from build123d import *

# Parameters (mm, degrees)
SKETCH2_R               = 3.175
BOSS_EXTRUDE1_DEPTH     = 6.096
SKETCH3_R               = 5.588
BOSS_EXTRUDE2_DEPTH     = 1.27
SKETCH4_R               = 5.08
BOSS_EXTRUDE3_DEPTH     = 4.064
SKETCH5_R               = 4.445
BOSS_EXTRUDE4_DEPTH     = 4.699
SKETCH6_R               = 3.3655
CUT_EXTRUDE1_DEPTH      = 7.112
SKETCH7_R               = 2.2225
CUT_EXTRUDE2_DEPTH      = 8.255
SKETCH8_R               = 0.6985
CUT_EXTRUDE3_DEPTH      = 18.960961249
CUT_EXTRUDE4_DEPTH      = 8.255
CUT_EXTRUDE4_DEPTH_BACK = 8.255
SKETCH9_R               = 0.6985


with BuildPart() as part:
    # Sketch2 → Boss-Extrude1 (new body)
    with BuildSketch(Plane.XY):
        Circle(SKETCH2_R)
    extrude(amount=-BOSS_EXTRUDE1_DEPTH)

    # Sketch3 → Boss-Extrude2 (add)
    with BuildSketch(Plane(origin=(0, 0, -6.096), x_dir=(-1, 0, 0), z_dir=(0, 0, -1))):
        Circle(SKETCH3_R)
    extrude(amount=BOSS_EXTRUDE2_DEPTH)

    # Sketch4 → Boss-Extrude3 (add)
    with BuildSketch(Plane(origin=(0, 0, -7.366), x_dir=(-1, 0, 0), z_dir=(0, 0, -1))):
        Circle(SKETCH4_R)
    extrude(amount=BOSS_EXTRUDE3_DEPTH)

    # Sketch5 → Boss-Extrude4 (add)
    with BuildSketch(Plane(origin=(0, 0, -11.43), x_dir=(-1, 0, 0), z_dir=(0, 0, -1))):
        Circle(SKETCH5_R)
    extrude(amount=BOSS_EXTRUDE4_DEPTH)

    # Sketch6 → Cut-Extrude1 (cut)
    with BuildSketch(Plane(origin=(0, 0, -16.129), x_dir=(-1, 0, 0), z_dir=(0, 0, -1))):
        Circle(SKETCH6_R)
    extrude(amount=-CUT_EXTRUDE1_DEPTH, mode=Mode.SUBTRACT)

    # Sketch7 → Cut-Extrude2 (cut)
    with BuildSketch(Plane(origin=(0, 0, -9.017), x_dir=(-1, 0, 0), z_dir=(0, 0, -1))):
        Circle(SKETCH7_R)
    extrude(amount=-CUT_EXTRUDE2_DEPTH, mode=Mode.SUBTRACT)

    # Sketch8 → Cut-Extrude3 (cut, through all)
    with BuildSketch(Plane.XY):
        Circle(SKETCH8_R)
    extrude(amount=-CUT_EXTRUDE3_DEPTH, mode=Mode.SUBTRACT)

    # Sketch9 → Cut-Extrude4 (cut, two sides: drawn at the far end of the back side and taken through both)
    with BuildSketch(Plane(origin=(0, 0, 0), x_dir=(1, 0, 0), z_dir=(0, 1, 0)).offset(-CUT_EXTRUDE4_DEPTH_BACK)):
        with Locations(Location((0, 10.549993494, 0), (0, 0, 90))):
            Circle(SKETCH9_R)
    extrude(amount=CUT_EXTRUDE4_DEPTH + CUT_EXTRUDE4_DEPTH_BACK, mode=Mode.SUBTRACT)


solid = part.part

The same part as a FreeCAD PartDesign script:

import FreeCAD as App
import Part
import Sketcher
Q = App.Units.Quantity

doc = App.newDocument("Part")
body = doc.addObject("PartDesign::Body", "Body")

sketch1 = doc.addObject("Sketcher::SketchObject", "Sketch")
body.addObject(sketch1)
sketch1.AttachmentSupport = (doc.XY_Plane, [""])
sketch1.MapMode = "FlatFace"
sketch1.addGeometry(Part.Circle(App.Vector(0, 0, 0), App.Vector(0, 0, 1), 3.175), False)
sketch1.addConstraint([
    Sketcher.Constraint("Coincident", 0, 3, -1, 1),
    Sketcher.Constraint("Diameter", 0, Q("0.25 in")),
])
pad1 = doc.addObject("PartDesign::Pad", "Pad")
body.addObject(pad1)
pad1.Profile = sketch1
pad1.Length = Q("0.24 in")
pad1.Reversed = True

sketch2 = doc.addObject("Sketcher::SketchObject", "Sketch001")
body.addObject(sketch2)
sketch2.AttachmentSupport = (doc.XY_Plane, [""])
sketch2.MapMode = "FlatFace"
sketch2.AttachmentOffset = App.Placement(App.Vector(0, 0, -0.24 * 25.4), App.Rotation())
sketch2.addGeometry(Part.Circle(App.Vector(0, 0, 0), App.Vector(0, 0, 1), 5.588), False)
sketch2.addConstraint([
    Sketcher.Constraint("Coincident", 0, 3, -1, 1),
    Sketcher.Constraint("Diameter", 0, Q("0.44 in")),
])
pad2 = doc.addObject("PartDesign::Pad", "Pad001")
body.addObject(pad2)
pad2.Profile = sketch2
pad2.Length = Q("0.05 in")
pad2.Reversed = True

sketch3 = doc.addObject("Sketcher::SketchObject", "Sketch002")
body.addObject(sketch3)
sketch3.AttachmentSupport = (doc.XY_Plane, [""])
sketch3.MapMode = "FlatFace"
sketch3.AttachmentOffset = App.Placement(App.Vector(0, 0, -0.29 * 25.4), App.Rotation())
sketch3.addGeometry(Part.Circle(App.Vector(0, 0, 0), App.Vector(0, 0, 1), 5.08), False)
sketch3.addConstraint([
    Sketcher.Constraint("Coincident", 0, 3, -1, 1),
    Sketcher.Constraint("Diameter", 0, Q("0.4 in")),
])
pad3 = doc.addObject("PartDesign::Pad", "Pad002")
body.addObject(pad3)
pad3.Profile = sketch3
pad3.Length = Q("0.16 in")
pad3.Reversed = True

sketch4 = doc.addObject("Sketcher::SketchObject", "Sketch003")
body.addObject(sketch4)
sketch4.AttachmentSupport = (doc.XY_Plane, [""])
sketch4.MapMode = "FlatFace"
sketch4.AttachmentOffset = App.Placement(App.Vector(0, 0, -0.45 * 25.4), App.Rotation())
sketch4.addGeometry(Part.Circle(App.Vector(0, 0, 0), App.Vector(0, 0, 1), 4.445), False)
sketch4.addConstraint([
    Sketcher.Constraint("Coincident", 0, 3, -1, 1),
    Sketcher.Constraint("Diameter", 0, Q("0.35 in")),
])
pad4 = doc.addObject("PartDesign::Pad", "Pad003")
body.addObject(pad4)
pad4.Profile = sketch4
pad4.Length = Q("0.185 in")
pad4.Reversed = True

sketch5 = doc.addObject("Sketcher::SketchObject", "Sketch004")
body.addObject(sketch5)
sketch5.AttachmentSupport = (doc.XY_Plane, [""])
sketch5.MapMode = "FlatFace"
sketch5.AttachmentOffset = App.Placement(App.Vector(0, 0, -0.635 * 25.4), App.Rotation())
sketch5.addGeometry(Part.Circle(App.Vector(0, 0, 0), App.Vector(0, 0, 1), 3.3655), False)
sketch5.addConstraint([
    Sketcher.Constraint("Coincident", 0, 3, -1, 1),
    Sketcher.Constraint("Diameter", 0, Q("0.265 in")),
])
pocket1 = doc.addObject("PartDesign::Pocket", "Pocket")
body.addObject(pocket1)
pocket1.Profile = sketch5
pocket1.Length = Q("0.28 in")
pocket1.Reversed = True

sketch6 = doc.addObject("Sketcher::SketchObject", "Sketch005")
body.addObject(sketch6)
sketch6.AttachmentSupport = (doc.XY_Plane, [""])
sketch6.MapMode = "FlatFace"
sketch6.AttachmentOffset = App.Placement(App.Vector(0, 0, -0.355 * 25.4), App.Rotation())
sketch6.addGeometry(Part.Circle(App.Vector(0, 0, 0), App.Vector(0, 0, 1), 2.2225), False)
sketch6.addConstraint([
    Sketcher.Constraint("Coincident", 0, 3, -1, 1),
    Sketcher.Constraint("Diameter", 0, Q("0.175 in")),
])
pocket2 = doc.addObject("PartDesign::Pocket", "Pocket001")
body.addObject(pocket2)
pocket2.Profile = sketch6
pocket2.Length = Q("0.325 in")
pocket2.Reversed = True

sketch7 = doc.addObject("Sketcher::SketchObject", "Sketch006")
body.addObject(sketch7)
sketch7.AttachmentSupport = (doc.XY_Plane, [""])
sketch7.MapMode = "FlatFace"
sketch7.addGeometry(Part.Circle(App.Vector(0, 0, 0), App.Vector(0, 0, 1), 0.6985), False)
sketch7.addConstraint([
    Sketcher.Constraint("Coincident", 0, 3, -1, 1),
    Sketcher.Constraint("Diameter", 0, Q("0.055 in")),
])
pocket3 = doc.addObject("PartDesign::Pocket", "Pocket002")
body.addObject(pocket3)
pocket3.Profile = sketch7
pocket3.Type = "ThroughAll"

sketch8 = doc.addObject("Sketcher::SketchObject", "Sketch007")
body.addObject(sketch8)
sketch8.AttachmentSupport = (doc.XZ_Plane, [""])
sketch8.MapMode = "FlatFace"
sketch8.addGeometry(Part.Circle(App.Vector(0, -10.549993, 0), App.Vector(0, 0, 1), 0.6985), False)
sketch8.addConstraint([
    Sketcher.Constraint("PointOnObject", 0, 3, -2),
    Sketcher.Constraint("Diameter", 0, Q("0.055 in")),
    Sketcher.Constraint("DistanceY", 0, 3, -1, 1, Q("10.549993 mm")),
])
pocket4 = doc.addObject("PartDesign::Pocket", "Pocket003")
body.addObject(pocket4)
pocket4.Profile = sketch8
pocket4.Type = "ThroughAll"
pocket4.Midplane = True

doc.recompute()
